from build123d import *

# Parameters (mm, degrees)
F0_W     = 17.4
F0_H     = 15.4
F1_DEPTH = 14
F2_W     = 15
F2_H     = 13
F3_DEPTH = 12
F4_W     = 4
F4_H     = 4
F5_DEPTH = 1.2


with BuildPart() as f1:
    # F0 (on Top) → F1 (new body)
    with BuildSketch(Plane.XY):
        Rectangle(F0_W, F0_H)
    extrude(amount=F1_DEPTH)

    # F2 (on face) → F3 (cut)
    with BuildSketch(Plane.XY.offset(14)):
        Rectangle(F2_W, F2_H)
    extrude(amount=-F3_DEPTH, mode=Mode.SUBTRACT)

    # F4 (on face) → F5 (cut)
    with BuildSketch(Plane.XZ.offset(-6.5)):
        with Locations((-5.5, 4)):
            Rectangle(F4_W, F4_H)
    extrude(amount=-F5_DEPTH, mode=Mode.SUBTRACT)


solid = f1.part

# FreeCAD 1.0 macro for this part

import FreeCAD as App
import Part
import Sketcher

V = App.Vector
Q = App.Units.Quantity


def add_polygon(sketch, points):
    """Adds a closed chain of lines whose ends are joined by coincident constraints."""
    first, n = sketch.GeometryCount, len(points)
    for a, b in zip(points, points[1:] + points[:1]):
        sketch.addGeometry(Part.LineSegment(App.Vector(*a, 0), App.Vector(*b, 0)), False)
    for i in range(n):
        sketch.addConstraint(Sketcher.Constraint("Coincident", first + i, 2, first + (i + 1) % n, 1))

doc = App.newDocument("Part")
params = doc.addObject("Spreadsheet::Sheet", "Params")
for row, (alias, value) in enumerate([
    ("sketch1_width", "17.4 mm"),
    ("sketch1_height", "15.4 mm"),
    ("pad1_length", "14 mm"),
    ("sketch2_width", "15 mm"),
    ("sketch2_height", "13 mm"),
    ("pocket1_length", "12 mm"),
    ("sketch3_width", "4 mm"),
    ("pocket2_length", "1.2 mm"),
], start=1):
    params.set(f"A{row}", alias)
    params.set(f"B{row}", "=" + value)
    params.setAlias(f"B{row}", alias)

body = doc.addObject("PartDesign::Body", "Body")

# Sketch on XY plane
sketch1 = doc.addObject("Sketcher::SketchObject", "Sketch")
body.addObject(sketch1)
sketch1.AttachmentSupport = (doc.XY_Plane, [""])
sketch1.MapMode = "FlatFace"
add_polygon(sketch1, [(-8.7, 7.7), (-8.7, -7.7), (8.7, -7.7), (8.7, 7.7)])  # lines 0-3
sketch1.addConstraint([
    Sketcher.Constraint("Vertical", 0),
    Sketcher.Constraint("Horizontal", 1),
    Sketcher.Constraint("Vertical", 2),
    Sketcher.Constraint("Horizontal", 3),
    Sketcher.Constraint("Symmetric", 0, 2, 2, 2, -1, 1),
    Sketcher.Constraint("DistanceX", 1, 1, 1, 2, Q("17.4 mm")),
    Sketcher.Constraint("DistanceY", 0, 2, 0, 1, Q("15.4 mm")),
])
sketch1.setExpression("Constraints[9]", "Params.sketch1_width")
sketch1.setExpression("Constraints[10]", "Params.sketch1_height")
pad1 = doc.addObject("PartDesign::Pad", "Pad")
body.addObject(pad1)
pad1.Profile = sketch1
pad1.setExpression("Length", "Params.pad1_length")

# Sketch on XY plane
sketch2 = doc.addObject("Sketcher::SketchObject", "Sketch001")
body.addObject(sketch2)
sketch2.AttachmentSupport = (doc.XY_Plane, [""])
sketch2.MapMode = "FlatFace"
sketch2.AttachmentOffset = App.Placement(V(0, 0, 14), App.Rotation())
add_polygon(sketch2, [(-7.5, 6.5), (-7.5, -6.5), (7.5, -6.5), (7.5, 6.5)])  # lines 0-3
sketch2.addConstraint([
    Sketcher.Constraint("Vertical", 0),
    Sketcher.Constraint("Horizontal", 1),
    Sketcher.Constraint("Vertical", 2),
    Sketcher.Constraint("Horizontal", 3),
    Sketcher.Constraint("Symmetric", 0, 2, 2, 2, -1, 1),
    Sketcher.Constraint("DistanceX", 1, 1, 1, 2, Q("15 mm")),
    Sketcher.Constraint("DistanceY", 0, 2, 0, 1, Q("13 mm")),
])
sketch2.setExpression("Constraints[9]", "Params.sketch2_width")
sketch2.setExpression("Constraints[10]", "Params.sketch2_height")
pocket1 = doc.addObject("PartDesign::Pocket", "Pocket")
body.addObject(pocket1)
pocket1.Profile = sketch2
pocket1.setExpression("Length", "Params.pocket1_length")

# Sketch on XZ plane
sketch3 = doc.addObject("Sketcher::SketchObject", "Sketch002")
body.addObject(sketch3)
sketch3.AttachmentSupport = (doc.XZ_Plane, [""])
sketch3.MapMode = "FlatFace"
sketch3.AttachmentOffset = App.Placement(V(0, 0, -6.5), App.Rotation())
add_polygon(sketch3, [(-7.5, 6), (-7.5, 2), (-3.5, 2), (-3.5, 6)])  # lines 0-3
sketch3.addConstraint([
    Sketcher.Constraint("Vertical", 0),
    Sketcher.Constraint("Horizontal", 1),
    Sketcher.Constraint("Vertical", 2),
    Sketcher.Constraint("Horizontal", 3),
    Sketcher.Constraint("Equal", 3, 0),
    Sketcher.Constraint("DistanceX", 1, 1, 1, 2, Q("4 mm")),
    Sketcher.Constraint("DistanceY", -1, 1, 0, 2, Q("2 mm")),
    Sketcher.Constraint("DistanceX", 0, 2, -1, 1, Q("7.5 mm")),
])
sketch3.setExpression("Constraints[9]", "Params.sketch3_width")
pocket2 = doc.addObject("PartDesign::Pocket", "Pocket001")
body.addObject(pocket2)
pocket2.Profile = sketch3
pocket2.setExpression("Length", "Params.pocket2_length")

doc.recompute()
